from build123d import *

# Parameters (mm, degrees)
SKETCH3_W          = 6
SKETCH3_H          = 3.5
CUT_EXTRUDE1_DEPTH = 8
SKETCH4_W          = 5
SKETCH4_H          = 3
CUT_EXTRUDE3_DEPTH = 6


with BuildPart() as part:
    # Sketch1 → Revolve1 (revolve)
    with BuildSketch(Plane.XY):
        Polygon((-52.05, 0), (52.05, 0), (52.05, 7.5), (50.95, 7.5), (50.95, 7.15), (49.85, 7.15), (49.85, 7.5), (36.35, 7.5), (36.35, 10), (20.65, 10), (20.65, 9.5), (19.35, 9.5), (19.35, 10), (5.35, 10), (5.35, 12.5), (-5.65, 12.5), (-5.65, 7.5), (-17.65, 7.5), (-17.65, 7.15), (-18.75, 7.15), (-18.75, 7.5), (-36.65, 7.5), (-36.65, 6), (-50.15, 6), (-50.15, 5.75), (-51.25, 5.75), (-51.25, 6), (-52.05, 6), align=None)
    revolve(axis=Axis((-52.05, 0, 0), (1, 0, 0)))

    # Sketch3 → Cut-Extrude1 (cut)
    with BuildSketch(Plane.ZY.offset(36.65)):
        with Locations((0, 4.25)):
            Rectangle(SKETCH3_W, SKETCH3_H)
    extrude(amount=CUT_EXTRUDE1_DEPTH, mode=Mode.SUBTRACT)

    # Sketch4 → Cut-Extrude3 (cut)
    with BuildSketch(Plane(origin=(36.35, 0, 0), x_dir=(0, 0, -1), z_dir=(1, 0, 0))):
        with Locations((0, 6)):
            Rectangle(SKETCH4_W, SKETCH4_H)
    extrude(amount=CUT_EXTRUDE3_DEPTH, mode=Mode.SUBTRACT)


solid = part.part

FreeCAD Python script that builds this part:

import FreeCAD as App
import Part
import Sketcher
Q = App.Units.Quantity

doc = App.newDocument("Part")
body = doc.addObject("PartDesign::Body", "Body")

sketch1 = body.newObject("Sketcher::SketchObject", "Sketch")
sketch1.AttachmentSupport = (doc.getObject("XY_Plane"), [""])
sketch1.MapMode = "FlatFace"
sketch1.addGeometry(Part.LineSegment(App.Vector(-52.05, 0, 0), App.Vector(52.05, 0, 0)), False)
sketch1.addGeometry(Part.LineSegment(App.Vector(52.05, 0, 0), App.Vector(52.05, 7.5, 0)), False)
sketch1.addGeometry(Part.LineSegment(App.Vector(52.05, 7.5, 0), App.Vector(50.95, 7.5, 0)), False)
sketch1.addGeometry(Part.LineSegment(App.Vector(50.95, 7.5, 0), App.Vector(50.95, 7.15, 0)), False)
sketch1.addGeometry(Part.LineSegment(App.Vector(50.95, 7.15, 0), App.Vector(49.85, 7.15, 0)), False)
sketch1.addGeometry(Part.LineSegment(App.Vector(49.85, 7.15, 0), App.Vector(49.85, 7.5, 0)), False)
sketch1.addGeometry(Part.LineSegment(App.Vector(49.85, 7.5, 0), App.Vector(36.35, 7.5, 0)), False)
sketch1.addGeometry(Part.LineSegment(App.Vector(36.35, 7.5, 0), App.Vector(36.35, 10, 0)), False)
sketch1.addGeometry(Part.LineSegment(App.Vector(36.35, 10, 0), App.Vector(20.65, 10, 0)), False)
sketch1.addGeometry(Part.LineSegment(App.Vector(20.65, 10, 0), App.Vector(20.65, 9.5, 0)), False)
sketch1.addGeometry(Part.LineSegment(App.Vector(20.65, 9.5, 0), App.Vector(19.35, 9.5, 0)), False)
sketch1.addGeometry(Part.LineSegment(App.Vector(19.35, 9.5, 0), App.Vector(19.35, 10, 0)), False)
sketch1.addGeometry(Part.LineSegment(App.Vector(19.35, 10, 0), App.Vector(5.35, 10, 0)), False)
sketch1.addGeometry(Part.LineSegment(App.Vector(5.35, 10, 0), App.Vector(5.35, 12.5, 0)), False)
sketch1.addGeometry(Part.LineSegment(App.Vector(5.35, 12.5, 0), App.Vector(-5.65, 12.5, 0)), False)
sketch1.addGeometry(Part.LineSegment(App.Vector(-5.65, 12.5, 0), App.Vector(-5.65, 7.5, 0)), False)
sketch1.addGeometry(Part.LineSegment(App.Vector(-5.65, 7.5, 0), App.Vector(-17.65, 7.5, 0)), False)
sketch1.addGeometry(Part.LineSegment(App.Vector(-17.65, 7.5, 0), App.Vector(-17.65, 7.15, 0)), False)
sketch1.addGeometry(Part.LineSegment(App.Vector(-17.65, 7.15, 0), App.Vector(-18.75, 7.15, 0)), False)
sketch1.addGeometry(Part.LineSegment(App.Vector(-18.75, 7.15, 0), App.Vector(-18.75, 7.5, 0)), False)
sketch1.addGeometry(Part.LineSegment(App.Vector(-18.75, 7.5, 0), App.Vector(-36.65, 7.5, 0)), False)
sketch1.addGeometry(Part.LineSegment(App.Vector(-36.65, 7.5, 0), App.Vector(-36.65, 6, 0)), False)
sketch1.addGeometry(Part.LineSegment(App.Vector(-36.65, 6, 0), App.Vector(-50.15, 6, 0)), False)
sketch1.addGeometry(Part.LineSegment(App.Vector(-50.15, 6, 0), App.Vector(-50.15, 5.75, 0)), False)
sketch1.addGeometry(Part.LineSegment(App.Vector(-50.15, 5.75, 0), App.Vector(-51.25, 5.75, 0)), False)
sketch1.addGeometry(Part.LineSegment(App.Vector(-51.25, 5.75, 0), App.Vector(-51.25, 6, 0)), False)
sketch1.addGeometry(Part.LineSegment(App.Vector(-51.25, 6, 0), App.Vector(-52.05, 6, 0)), False)
sketch1.addGeometry(Part.LineSegment(App.Vector(-52.05, 6, 0), App.Vector(-52.05, 0, 0)), False)
sketch1.addConstraint(Sketcher.Constraint("Coincident", 0, 2, 1, 1))
sketch1.addConstraint(Sketcher.Constraint("Coincident", 1, 2, 2, 1))
sketch1.addConstraint(Sketcher.Constraint("Coincident", 2, 2, 3, 1))
sketch1.addConstraint(Sketcher.Constraint("Coincident", 3, 2, 4, 1))
sketch1.addConstraint(Sketcher.Constraint("Coincident", 4, 2, 5, 1))
sketch1.addConstraint(Sketcher.Constraint("Coincident", 5, 2, 6, 1))
sketch1.addConstraint(Sketcher.Constraint("Coincident", 6, 2, 7, 1))
sketch1.addConstraint(Sketcher.Constraint("Coincident", 7, 2, 8, 1))
sketch1.addConstraint(Sketcher.Constraint("Coincident", 8, 2, 9, 1))
sketch1.addConstraint(Sketcher.Constraint("Coincident", 9, 2, 10, 1))
sketch1.addConstraint(Sketcher.Constraint("Coincident", 10, 2, 11, 1))
sketch1.addConstraint(Sketcher.Constraint("Coincident", 11, 2, 12, 1))
sketch1.addConstraint(Sketcher.Constraint("Coincident", 12, 2, 13, 1))
sketch1.addConstraint(Sketcher.Constraint("Coincident", 13, 2, 14, 1))
sketch1.addConstraint(Sketcher.Constraint("Coincident", 14, 2, 15, 1))
sketch1.addConstraint(Sketcher.Constraint("Coincident", 15, 2, 16, 1))
sketch1.addConstraint(Sketcher.Constraint("Coincident", 16, 2, 17, 1))
sketch1.addConstraint(Sketcher.Constraint("Coincident", 17, 2, 18, 1))
sketch1.addConstraint(Sketcher.Constraint("Coincident", 18, 2, 19, 1))
sketch1.addConstraint(Sketcher.Constraint("Coincident", 19, 2, 20, 1))
sketch1.addConstraint(Sketcher.Constraint("Coincident", 20, 2, 21, 1))
sketch1.addConstraint(Sketcher.Constraint("Coincident", 21, 2, 22, 1))
sketch1.addConstraint(Sketcher.Constraint("Coincident", 22, 2, 23, 1))
sketch1.addConstraint(Sketcher.Constraint("Coincident", 23, 2, 24, 1))
sketch1.addConstraint(Sketcher.Constraint("Coincident", 24, 2, 25, 1))
sketch1.addConstraint(Sketcher.Constraint("Coincident", 25, 2, 26, 1))
sketch1.addConstraint(Sketcher.Constraint("Coincident", 26, 2, 27, 1))
sketch1.addConstraint(Sketcher.Constraint("Coincident", 27, 2, 0, 1))
sketch1.addConstraint(Sketcher.Constraint("Horizontal", 0))
sketch1.addConstraint(Sketcher.Constraint("Vertical", 1))
sketch1.addConstraint(Sketcher.Constraint("Horizontal", 2))
sketch1.addConstraint(Sketcher.Constraint("Vertical", 3))
sketch1.addConstraint(Sketcher.Constraint("Horizontal", 4))
sketch1.addConstraint(Sketcher.Constraint("Vertical", 5))
sketch1.addConstraint(Sketcher.Constraint("Horizontal", 6))
sketch1.addConstraint(Sketcher.Constraint("Vertical", 7))
sketch1.addConstraint(Sketcher.Constraint("Horizontal", 8))
sketch1.addConstraint(Sketcher.Constraint("Vertical", 9))
sketch1.addConstraint(Sketcher.Constraint("Horizontal", 10))
sketch1.addConstraint(Sketcher.Constraint("Vertical", 11))
sketch1.addConstraint(Sketcher.Constraint("Horizontal", 12))
sketch1.addConstraint(Sketcher.Constraint("Vertical", 13))
sketch1.addConstraint(Sketcher.Constraint("Horizontal", 14))
sketch1.addConstraint(Sketcher.Constraint("Vertical", 15))
sketch1.addConstraint(Sketcher.Constraint("Horizontal", 16))
sketch1.addConstraint(Sketcher.Constraint("Vertical", 17))
sketch1.addConstraint(Sketcher.Constraint("Horizontal", 18))
sketch1.addConstraint(Sketcher.Constraint("Vertical", 19))
sketch1.addConstraint(Sketcher.Constraint("Horizontal", 20))
sketch1.addConstraint(Sketcher.Constraint("Vertical", 21))
sketch1.addConstraint(Sketcher.Constraint("Horizontal", 22))
sketch1.addConstraint(Sketcher.Constraint("Vertical", 23))
sketch1.addConstraint(Sketcher.Constraint("Horizontal", 24))
sketch1.addConstraint(Sketcher.Constraint("Vertical", 25))
sketch1.addConstraint(Sketcher.Constraint("Horizontal", 26))
sketch1.addConstraint(Sketcher.Constraint("Vertical", 27))
sketch1.addConstraint(Sketcher.Constraint("Symmetric", 0, 2, 27, 2, -1, 1))
sketch1.addConstraint(Sketcher.Constraint("Horizontal", 2, 2, 5, 2))
sketch1.addConstraint(Sketcher.Constraint("Horizontal", 8, 2, 11, 2))
sketch1.addConstraint(Sketcher.Constraint("Horizontal", 6, 2, 15, 2))
sketch1.addConstraint(Sketcher.Constraint("Horizontal", 4, 2, 17, 2))
sketch1.addConstraint(Sketcher.Constraint("Horizontal", 16, 2, 19, 2))
sketch1.addConstraint(Sketcher.Constraint("Horizontal", 22, 2, 25, 2))
sketch1.addConstraint(Sketcher.Constraint("Equal", 2, 4))
sketch1.addConstraint(Sketcher.Constraint("Equal", 4, 18))
sketch1.addConstraint(Sketcher.Constraint("Equal", 6, 22))
sketch1.addConstraint(Sketcher.Constraint("Equal", 18, 24))
sketch1.addConstraint(Sketcher.Constraint("Equal", 7, 13))
sketch1.addConstraint(Sketcher.Constraint("DistanceX", 12, 2, 12, 1, Q("14 mm")))
sketch1.addConstraint(Sketcher.Constraint("DistanceX", 14, 2, 14, 1, Q("11 mm")))
sketch1.addConstraint(Sketcher.Constraint("DistanceX", 16, 2, 16, 1, Q("12 mm")))
sketch1.addConstraint(Sketcher.Constraint("DistanceY", 15, 2, 15, 1, Q("5 mm")))
sketch1.addConstraint(Sketcher.Constraint("DistanceY", 27, 2, 27, 1, Q("6 mm")))
sketch1.addConstraint(Sketcher.Constraint("DistanceX", 0, 1, 0, 2, Q("104.1 mm")))
sketch1.addConstraint(Sketcher.Constraint("DistanceX", 2, 2, 2, 1, Q("1.1 mm")))
sketch1.addConstraint(Sketcher.Constraint("DistanceX", 6, 2, 6, 1, Q("13.5 mm")))
sketch1.addConstraint(Sketcher.Constraint("DistanceX", 8, 2, 8, 1, Q("15.7 mm")))
sketch1.addConstraint(Sketcher.Constraint("DistanceX", 10, 2, 10, 1, Q("1.3 mm")))
sketch1.addConstraint(Sketcher.Constraint("DistanceX", 20, 2, 20, 1, Q("17.9 mm")))
sketch1.addConstraint(Sketcher.Constraint("DistanceY", 1, 1, 1, 2, Q("7.5 mm")))
sketch1.addConstraint(Sketcher.Constraint("DistanceY", 9, 2, 9, 1, Q("0.5 mm")))
sketch1.addConstraint(Sketcher.Constraint("DistanceY", 3, 2, 3, 1, Q("0.35 mm")))
sketch1.addConstraint(Sketcher.Constraint("DistanceY", 23, 2, 23, 1, Q("0.25 mm")))
revolution = body.newObject("PartDesign::Revolution", "Revolution")
revolution.Profile = sketch1
revolution.ReferenceAxis = (sketch1, ["H_Axis"])
revolution.Angle = 360

sketch2 = body.newObject("Sketcher::SketchObject", "Sketch001")
sketch2.AttachmentSupport = (doc.getObject("YZ_Plane"), [""])
sketch2.MapMode = "FlatFace"
sketch2.AttachmentOffset = App.Placement(App.Vector(0, 0, -36.65), App.Rotation())
sketch2.addGeometry(Part.LineSegment(App.Vector(6, -3, 0), App.Vector(2.5, -3, 0)), False)
sketch2.addGeometry(Part.LineSegment(App.Vector(2.5, -3, 0), App.Vector(2.5, 3, 0)), False)
sketch2.addGeometry(Part.LineSegment(App.Vector(2.5, 3, 0), App.Vector(6, 3, 0)), False)
sketch2.addGeometry(Part.LineSegment(App.Vector(6, 3, 0), App.Vector(6, -3, 0)), False)
sketch2.addConstraint(Sketcher.Constraint("Coincident", 0, 2, 1, 1))
sketch2.addConstraint(Sketcher.Constraint("Coincident", 1, 2, 2, 1))
sketch2.addConstraint(Sketcher.Constraint("Coincident", 2, 2, 3, 1))
sketch2.addConstraint(Sketcher.Constraint("Coincident", 3, 2, 0, 1))
sketch2.addConstraint(Sketcher.Constraint("Horizontal", 0))
sketch2.addConstraint(Sketcher.Constraint("Vertical", 1))
sketch2.addConstraint(Sketcher.Constraint("Horizontal", 2))
sketch2.addConstraint(Sketcher.Constraint("Vertical", 3))
sketch2.addConstraint(Sketcher.Constraint("DistanceY", 1, 1, 1, 2, Q("6 mm")))
sketch2.addConstraint(Sketcher.Constraint("DistanceX", 0, 2, 0, 1, Q("3.5 mm")))
sketch2.addConstraint(Sketcher.Constraint("DistanceY", 0, 2, -1, 1, Q("3 mm")))
sketch2.addConstraint(Sketcher.Constraint("DistanceX", -1, 1, 2, 2, Q("6 mm")))
pocket1 = body.newObject("PartDesign::Pocket", "Pocket")
pocket1.Profile = sketch2
pocket1.Length = 8

sketch3 = body.newObject("Sketcher::SketchObject", "Sketch002")
sketch3.AttachmentSupport = (doc.getObject("YZ_Plane"), [""])
sketch3.MapMode = "FlatFace"
sketch3.AttachmentOffset = App.Placement(App.Vector(0, 0, 36.35), App.Rotation())
sketch3.addGeometry(Part.LineSegment(App.Vector(7.5, 2.5, 0), App.Vector(4.5, 2.5, 0)), False)
sketch3.addGeometry(Part.LineSegment(App.Vector(4.5, 2.5, 0), App.Vector(4.5, -2.5, 0)), False)
sketch3.addGeometry(Part.LineSegment(App.Vector(4.5, -2.5, 0), App.Vector(7.5, -2.5, 0)), False)
sketch3.addGeometry(Part.LineSegment(App.Vector(7.5, -2.5, 0), App.Vector(7.5, 2.5, 0)), False)
sketch3.addConstraint(Sketcher.Constraint("Coincident", 0, 2, 1, 1))
sketch3.addConstraint(Sketcher.Constraint("Coincident", 1, 2, 2, 1))
sketch3.addConstraint(Sketcher.Constraint("Coincident", 2, 2, 3, 1))
sketch3.addConstraint(Sketcher.Constraint("Coincident", 3, 2, 0, 1))
sketch3.addConstraint(Sketcher.Constraint("Horizontal", 0))
sketch3.addConstraint(Sketcher.Constraint("Vertical", 1))
sketch3.addConstraint(Sketcher.Constraint("Horizontal", 2))
sketch3.addConstraint(Sketcher.Constraint("Vertical", 3))
sketch3.addConstraint(Sketcher.Constraint("DistanceX", 0, 2, 0, 1, Q("3 mm")))
sketch3.addConstraint(Sketcher.Constraint("DistanceY", 1, 2, 1, 1, Q("5 mm")))
sketch3.addConstraint(Sketcher.Constraint("DistanceX", -1, 1, 0, 2, Q("4.5 mm")))
sketch3.addConstraint(Sketcher.Constraint("DistanceY", -1, 1, 0, 2, Q("2.5 mm")))
pocket2 = body.newObject("PartDesign::Pocket", "Pocket001")
pocket2.Profile = sketch3
pocket2.Length = 6
pocket2.Reversed = True

doc.recompute()
